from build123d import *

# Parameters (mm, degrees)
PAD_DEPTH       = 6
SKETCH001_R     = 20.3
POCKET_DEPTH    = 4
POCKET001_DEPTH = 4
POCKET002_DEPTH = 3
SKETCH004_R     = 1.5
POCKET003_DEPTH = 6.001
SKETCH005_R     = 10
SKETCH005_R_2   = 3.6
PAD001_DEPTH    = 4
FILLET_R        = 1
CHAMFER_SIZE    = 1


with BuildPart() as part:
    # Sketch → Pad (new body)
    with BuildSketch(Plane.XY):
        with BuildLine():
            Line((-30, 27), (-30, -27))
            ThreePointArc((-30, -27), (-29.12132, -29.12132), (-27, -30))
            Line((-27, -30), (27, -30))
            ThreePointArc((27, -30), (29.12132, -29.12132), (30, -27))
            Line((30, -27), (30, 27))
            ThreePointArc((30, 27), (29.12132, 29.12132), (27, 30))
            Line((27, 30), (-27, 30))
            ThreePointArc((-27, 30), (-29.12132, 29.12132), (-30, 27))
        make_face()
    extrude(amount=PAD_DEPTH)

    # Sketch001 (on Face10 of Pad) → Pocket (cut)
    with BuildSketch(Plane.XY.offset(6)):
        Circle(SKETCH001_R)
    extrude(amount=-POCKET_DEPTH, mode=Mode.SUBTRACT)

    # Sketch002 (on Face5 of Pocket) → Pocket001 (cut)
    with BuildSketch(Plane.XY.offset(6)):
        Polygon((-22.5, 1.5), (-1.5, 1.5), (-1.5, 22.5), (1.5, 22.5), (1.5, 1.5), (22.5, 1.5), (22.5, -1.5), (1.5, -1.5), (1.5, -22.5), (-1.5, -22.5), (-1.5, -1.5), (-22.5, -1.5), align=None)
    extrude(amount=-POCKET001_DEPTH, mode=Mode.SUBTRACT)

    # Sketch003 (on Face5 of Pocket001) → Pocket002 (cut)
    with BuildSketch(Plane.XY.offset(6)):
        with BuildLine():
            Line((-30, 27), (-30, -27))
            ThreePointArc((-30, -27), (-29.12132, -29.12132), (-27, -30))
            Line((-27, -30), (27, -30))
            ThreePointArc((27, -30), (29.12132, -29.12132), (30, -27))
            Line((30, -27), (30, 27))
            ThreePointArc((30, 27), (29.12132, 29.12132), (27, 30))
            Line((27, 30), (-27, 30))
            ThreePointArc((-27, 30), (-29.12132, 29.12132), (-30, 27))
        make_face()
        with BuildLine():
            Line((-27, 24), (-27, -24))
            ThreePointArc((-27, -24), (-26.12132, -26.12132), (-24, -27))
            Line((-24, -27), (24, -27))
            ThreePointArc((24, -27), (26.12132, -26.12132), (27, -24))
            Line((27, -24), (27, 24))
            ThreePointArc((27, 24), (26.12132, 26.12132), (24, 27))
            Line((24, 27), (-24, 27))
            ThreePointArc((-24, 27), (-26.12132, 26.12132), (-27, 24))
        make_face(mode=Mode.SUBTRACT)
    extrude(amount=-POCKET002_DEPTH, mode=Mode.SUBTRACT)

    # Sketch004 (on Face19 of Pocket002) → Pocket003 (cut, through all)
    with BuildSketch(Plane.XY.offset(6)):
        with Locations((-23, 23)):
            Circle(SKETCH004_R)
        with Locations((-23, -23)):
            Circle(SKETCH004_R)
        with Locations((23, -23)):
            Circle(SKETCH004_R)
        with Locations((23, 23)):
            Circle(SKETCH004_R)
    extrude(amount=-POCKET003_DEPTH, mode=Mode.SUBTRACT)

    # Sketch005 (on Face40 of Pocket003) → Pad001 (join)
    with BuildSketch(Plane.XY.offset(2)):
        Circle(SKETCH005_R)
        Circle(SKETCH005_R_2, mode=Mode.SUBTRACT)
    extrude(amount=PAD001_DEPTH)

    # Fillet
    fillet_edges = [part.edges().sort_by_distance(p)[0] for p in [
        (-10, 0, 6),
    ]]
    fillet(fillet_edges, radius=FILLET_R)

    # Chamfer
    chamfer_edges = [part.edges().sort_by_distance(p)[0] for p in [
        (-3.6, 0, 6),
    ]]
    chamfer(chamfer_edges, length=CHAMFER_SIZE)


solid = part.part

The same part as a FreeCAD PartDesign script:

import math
import FreeCAD as App
import Part
import Sketcher


def edges_at(feature, points):
    """Names of the edges that pass closest to the given points."""
    edges = feature.Shape.Edges
    near = lambda p: min(range(len(edges)), key=lambda i: edges[i].distToShape(Part.Vertex(*p))[0])
    return sorted({f"Edge{near(p) + 1}" for p in points})

doc = App.newDocument("Part")
body = doc.addObject("PartDesign::Body", "Body")

# Sketch on XY plane
sketch1 = body.newObject("Sketcher::SketchObject", "Sketch")
sketch1.AttachmentSupport = (doc.getObject("XY_Plane"), [""])
sketch1.MapMode = "FlatFace"
sketch1.addGeometry([
    Part.LineSegment(App.Vector(-30, 27, 0), App.Vector(-30, -27, 0)),  # 0
    Part.ArcOfCircle(Part.Circle(App.Vector(-27, -27, 0), App.Vector(0, 0, 1), 3), math.radians(-180), math.radians(-90)),  # 1
    Part.LineSegment(App.Vector(-27, -30, 0), App.Vector(27, -30, 0)),  # 2
    Part.ArcOfCircle(Part.Circle(App.Vector(27, -27, 0), App.Vector(0, 0, 1), 3), math.radians(-90), math.radians(0)),  # 3
    Part.LineSegment(App.Vector(30, -27, 0), App.Vector(30, 27, 0)),  # 4
    Part.ArcOfCircle(Part.Circle(App.Vector(27, 27, 0), App.Vector(0, 0, 1), 3), math.radians(0), math.radians(90)),  # 5
    Part.LineSegment(App.Vector(27, 30, 0), App.Vector(-27, 30, 0)),  # 6
    Part.ArcOfCircle(Part.Circle(App.Vector(-27, 27, 0), App.Vector(0, 0, 1), 3), math.radians(90), math.radians(180)),  # 7
], False)
sketch1.addConstraint([
    Sketcher.Constraint("Tangent", 0, 2, 1, 1),
    Sketcher.Constraint("Tangent", 1, 2, 2, 1),
    Sketcher.Constraint("Tangent", 2, 2, 3, 1),
    Sketcher.Constraint("Tangent", 3, 2, 4, 1),
    Sketcher.Constraint("Tangent", 4, 2, 5, 1),
    Sketcher.Constraint("Tangent", 5, 2, 6, 1),
    Sketcher.Constraint("Tangent", 6, 2, 7, 1),
    Sketcher.Constraint("Tangent", 7, 2, 0, 1),
    Sketcher.Constraint("Vertical", 0),
    Sketcher.Constraint("Horizontal", 2),
    Sketcher.Constraint("Vertical", 4),
    Sketcher.Constraint("Horizontal", 6),
    Sketcher.Constraint("Equal", 1, 3),
    Sketcher.Constraint("Equal", 3, 5),
    Sketcher.Constraint("Equal", 5, 7),
    Sketcher.Constraint("Symmetric", 1, 3, 5, 3, -1, 1),
    Sketcher.Constraint("Equal", 6, 0),
    Sketcher.Constraint("Radius", 1, 3.000001),
    Sketcher.Constraint("DistanceX", 2, 1, 2, 2, 54.0),
])
pad1 = body.newObject("PartDesign::Pad", "Pad")
pad1.Profile = sketch1
pad1.Length = 6

# Sketch on XY plane
sketch2 = body.newObject("Sketcher::SketchObject", "Sketch001")
sketch2.AttachmentSupport = (doc.getObject("XY_Plane"), [""])
sketch2.MapMode = "FlatFace"
sketch2.AttachmentOffset = App.Placement(App.Vector(0, 0, 6), App.Rotation())
sketch2.addGeometry(Part.Circle(App.Vector(0, 0, 0), App.Vector(0, 0, 1), 20), False)
sketch2.addConstraint([
    Sketcher.Constraint("Coincident", 0, 3, -1, 1),
    Sketcher.Constraint("Diameter", 0, 40.6),
])
pocket1 = body.newObject("PartDesign::Pocket", "Pocket")
pocket1.Profile = sketch2
pocket1.Length = 4

# Sketch on XY plane
sketch3 = body.newObject("Sketcher::SketchObject", "Sketch002")
sketch3.AttachmentSupport = (doc.getObject("XY_Plane"), [""])
sketch3.MapMode = "FlatFace"
sketch3.AttachmentOffset = App.Placement(App.Vector(0, 0, 6), App.Rotation())
sketch3.addGeometry([
    Part.LineSegment(App.Vector(-1.5, 1.5, 0), App.Vector(-22.5, 1.5, 0)),  # 0
    Part.LineSegment(App.Vector(-22.5, 1.5, 0), App.Vector(-22.5, -1.5, 0)),  # 1
    Part.LineSegment(App.Vector(-22.5, -1.5, 0), App.Vector(-1.5, -1.5, 0)),  # 2
    Part.LineSegment(App.Vector(-1.5, -1.5, 0), App.Vector(-1.5, -22.5, 0)),  # 3
    Part.LineSegment(App.Vector(-1.5, -22.5, 0), App.Vector(1.5, -22.5, 0)),  # 4
    Part.LineSegment(App.Vector(1.5, -22.5, 0), App.Vector(1.5, -1.5, 0)),  # 5
    Part.LineSegment(App.Vector(1.5, -1.5, 0), App.Vector(22.5, -1.5, 0)),  # 6
    Part.LineSegment(App.Vector(22.5, -1.5, 0), App.Vector(22.5, 1.5, 0)),  # 7
    Part.LineSegment(App.Vector(22.5, 1.5, 0), App.Vector(1.5, 1.5, 0)),  # 8
    Part.LineSegment(App.Vector(1.5, 1.5, 0), App.Vector(1.5, 22.5, 0)),  # 9
    Part.LineSegment(App.Vector(1.5, 22.5, 0), App.Vector(-1.5, 22.5, 0)),  # 10
    Part.LineSegment(App.Vector(-1.5, 22.5, 0), App.Vector(-1.5, 1.5, 0)),  # 11
], False)
sketch3.addConstraint([
    Sketcher.Constraint("Coincident", 0, 2, 1, 1),
    Sketcher.Constraint("Coincident", 1, 2, 2, 1),
    Sketcher.Constraint("Coincident", 2, 2, 3, 1),
    Sketcher.Constraint("Coincident", 3, 2, 4, 1),
    Sketcher.Constraint("Coincident", 4, 2, 5, 1),
    Sketcher.Constraint("Coincident", 5, 2, 6, 1),
    Sketcher.Constraint("Coincident", 6, 2, 7, 1),
    Sketcher.Constraint("Coincident", 7, 2, 8, 1),
    Sketcher.Constraint("Coincident", 8, 2, 9, 1),
    Sketcher.Constraint("Coincident", 9, 2, 10, 1),
    Sketcher.Constraint("Coincident", 10, 2, 11, 1),
    Sketcher.Constraint("Coincident", 11, 2, 0, 1),
    Sketcher.Constraint("Horizontal", 0),
    Sketcher.Constraint("Vertical", 1),
    Sketcher.Constraint("Horizontal", 2),
    Sketcher.Constraint("Vertical", 3),
    Sketcher.Constraint("Horizontal", 4),
    Sketcher.Constraint("Vertical", 5),
    Sketcher.Constraint("Horizontal", 6),
    Sketcher.Constraint("Vertical", 7),
    Sketcher.Constraint("Horizontal", 8),
    Sketcher.Constraint("Vertical", 9),
    Sketcher.Constraint("Horizontal", 10),
    Sketcher.Constraint("Vertical", 11),
    Sketcher.Constraint("Symmetric", 0, 2, 6, 2, -1, 1),
    Sketcher.Constraint("Symmetric", 2, 2, 8, 2, -1, 1),
    Sketcher.Constraint("Symmetric", 4, 2, 10, 2, -1, 1),
    Sketcher.Constraint("Symmetric", 2, 2, 5, 2, -2),
    Sketcher.Constraint("Equal", 10, 1),
    Sketcher.Constraint("Equal", 8, 3),
    Sketcher.Constraint("DistanceX", 0, 2, 0, 1, 21.0),
    Sketcher.Constraint("DistanceX", 4, 1, 4, 2, 3.0),
])
pocket2 = body.newObject("PartDesign::Pocket", "Pocket001")
pocket2.Profile = sketch3
pocket2.Length = 4

# Sketch on XY plane
sketch4 = body.newObject("Sketcher::SketchObject", "Sketch003")
sketch4.AttachmentSupport = (doc.getObject("XY_Plane"), [""])
sketch4.MapMode = "FlatFace"
sketch4.AttachmentOffset = App.Placement(App.Vector(0, 0, 6), App.Rotation())
sketch4.addGeometry([
    Part.LineSegment(App.Vector(-30, 27, 0), App.Vector(-30, -27, 0)),  # 0
    Part.ArcOfCircle(Part.Circle(App.Vector(-27, -27, 0), App.Vector(0, 0, 1), 3), math.radians(-180), math.radians(-90)),  # 1
    Part.LineSegment(App.Vector(-27, -30, 0), App.Vector(27, -30, 0)),  # 2
    Part.ArcOfCircle(Part.Circle(App.Vector(27, -27, 0), App.Vector(0, 0, 1), 3), math.radians(-90), math.radians(0)),  # 3
    Part.LineSegment(App.Vector(30, -27, 0), App.Vector(30, 27, 0)),  # 4
    Part.ArcOfCircle(Part.Circle(App.Vector(27, 27, 0), App.Vector(0, 0, 1), 3), math.radians(0), math.radians(90)),  # 5
    Part.LineSegment(App.Vector(27, 30, 0), App.Vector(-27, 30, 0)),  # 6
    Part.ArcOfCircle(Part.Circle(App.Vector(-27, 27, 0), App.Vector(0, 0, 1), 3), math.radians(90), math.radians(180)),  # 7
    Part.LineSegment(App.Vector(-27, -24, 0), App.Vector(-27, 24, 0)),  # 8
    Part.ArcOfCircle(Part.Circle(App.Vector(-24, 24, 0), App.Vector(0, 0, 1), 3), math.radians(90), math.radians(180)),  # 9
    Part.LineSegment(App.Vector(-24, 27, 0), App.Vector(24, 27, 0)),  # 10
    Part.ArcOfCircle(Part.Circle(App.Vector(24, 24, 0), App.Vector(0, 0, 1), 3), math.radians(0), math.radians(90)),  # 11
    Part.LineSegment(App.Vector(27, 24, 0), App.Vector(27, -24, 0)),  # 12
    Part.ArcOfCircle(Part.Circle(App.Vector(24, -24, 0), App.Vector(0, 0, 1), 3), math.radians(-90), math.radians(0)),  # 13
    Part.LineSegment(App.Vector(24, -27, 0), App.Vector(-24, -27, 0)),  # 14
    Part.ArcOfCircle(Part.Circle(App.Vector(-24, -24, 0), App.Vector(0, 0, 1), 3), math.radians(-180), math.radians(-90)),  # 15
], False)
sketch4.addConstraint([
    Sketcher.Constraint("Tangent", 0, 2, 1, 1),
    Sketcher.Constraint("Tangent", 1, 2, 2, 1),
    Sketcher.Constraint("Tangent", 2, 2, 3, 1),
    Sketcher.Constraint("Tangent", 3, 2, 4, 1),
    Sketcher.Constraint("Tangent", 4, 2, 5, 1),
    Sketcher.Constraint("Tangent", 5, 2, 6, 1),
    Sketcher.Constraint("Tangent", 6, 2, 7, 1),
    Sketcher.Constraint("Tangent", 7, 2, 0, 1),
    Sketcher.Constraint("Tangent", 8, 2, 9, 2),
    Sketcher.Constraint("Tangent", 9, 1, 10, 1),
    Sketcher.Constraint("Tangent", 10, 2, 11, 2),
    Sketcher.Constraint("Tangent", 11, 1, 12, 1),
    Sketcher.Constraint("Tangent", 12, 2, 13, 2),
    Sketcher.Constraint("Tangent", 13, 1, 14, 1),
    Sketcher.Constraint("Tangent", 14, 2, 15, 2),
    Sketcher.Constraint("Tangent", 15, 1, 8, 1),
    Sketcher.Constraint("Vertical", 0),
    Sketcher.Constraint("Horizontal", 2),
    Sketcher.Constraint("Vertical", 4),
    Sketcher.Constraint("Horizontal", 6),
    Sketcher.Constraint("Vertical", 8),
    Sketcher.Constraint("Horizontal", 10),
    Sketcher.Constraint("Vertical", 12),
    Sketcher.Constraint("Horizontal", 14),
    Sketcher.Constraint("Equal", 1, 3),
    Sketcher.Constraint("Equal", 3, 5),
    Sketcher.Constraint("Equal", 5, 7),
    Sketcher.Constraint("Equal", 7, 9),
    Sketcher.Constraint("Equal", 9, 11),
    Sketcher.Constraint("Equal", 11, 13),
    Sketcher.Constraint("Equal", 13, 15),
    Sketcher.Constraint("Symmetric", 1, 3, 5, 3, -1, 1),
    Sketcher.Constraint("Symmetric", 9, 3, 13, 3, -1, 1),
    Sketcher.Constraint("Horizontal", 7, 2, 9, 1),
    Sketcher.Constraint("Vertical", 6, 2, 8, 2),
    Sketcher.Constraint("Equal", 6, 0),
    Sketcher.Constraint("Radius", 1, 3.000001),
    Sketcher.Constraint("DistanceX", 2, 1, 2, 2, 54.0),
])
pocket3 = body.newObject("PartDesign::Pocket", "Pocket002")
pocket3.Profile = sketch4
pocket3.Length = 3

# Sketch on XY plane
sketch5 = body.newObject("Sketcher::SketchObject", "Sketch004")
sketch5.AttachmentSupport = (doc.getObject("XY_Plane"), [""])
sketch5.MapMode = "FlatFace"
sketch5.AttachmentOffset = App.Placement(App.Vector(0, 0, 6), App.Rotation())
sketch5.addGeometry([
    Part.Circle(App.Vector(-23, 23, 0), App.Vector(0, 0, 1), 1.5),
    Part.Circle(App.Vector(-23, -23, 0), App.Vector(0, 0, 1), 1.5),
    Part.Circle(App.Vector(23, -23, 0), App.Vector(0, 0, 1), 1.5),
    Part.Circle(App.Vector(23, 23, 0), App.Vector(0, 0, 1), 1.5),
], False)
sketch5.addConstraint([
    Sketcher.Constraint("Equal", 0, 1),
    Sketcher.Constraint("Equal", 1, 2),
    Sketcher.Constraint("Equal", 2, 3),
    Sketcher.Constraint("Symmetric", 0, 3, 2, 3, -1, 1),
    Sketcher.Constraint("Symmetric", 1, 3, 3, 3, -1, 1),
    Sketcher.Constraint("Symmetric", 1, 3, 2, 3, -2),
    Sketcher.Constraint("Diameter", 0, 3.0),
    Sketcher.Constraint("DistanceX", 0, 3, -1, 1, 23.0),
    Sketcher.Constraint("DistanceY", -1, 1, 0, 3, 23.0),
])
pocket4 = body.newObject("PartDesign::Pocket", "Pocket003")
pocket4.Profile = sketch5
pocket4.Type = "ThroughAll"

# Sketch on XY plane
sketch6 = body.newObject("Sketcher::SketchObject", "Sketch005")
sketch6.AttachmentSupport = (doc.getObject("XY_Plane"), [""])
sketch6.MapMode = "FlatFace"
sketch6.AttachmentOffset = App.Placement(App.Vector(0, 0, 2), App.Rotation())
sketch6.addGeometry([
    Part.Circle(App.Vector(0, 0, 0), App.Vector(0, 0, 1), 10),
    Part.Circle(App.Vector(0, 0, 0), App.Vector(0, 0, 1), 3.6),
], False)
sketch6.addConstraint([
    Sketcher.Constraint("Coincident", 0, 3, -1, 1),
    Sketcher.Constraint("Coincident", 1, 3, -1, 1),
    Sketcher.Constraint("Diameter", 0, 20.0),
    Sketcher.Constraint("Diameter", 1, 7.2),
])
pad2 = body.newObject("PartDesign::Pad", "Pad001")
pad2.Profile = sketch6
pad2.Length = 4
doc.recompute()

fillet = body.newObject("PartDesign::Fillet", "Fillet")
fillet.Base = (pad2, edges_at(pad2, [(-10, 0, 6)]))
fillet.Radius = 1
doc.recompute()

chamfer = body.newObject("PartDesign::Chamfer", "Chamfer")
chamfer.Base = (fillet, edges_at(fillet, [(-3.6, 0, 6)]))
chamfer.Size = 1

doc.recompute()
